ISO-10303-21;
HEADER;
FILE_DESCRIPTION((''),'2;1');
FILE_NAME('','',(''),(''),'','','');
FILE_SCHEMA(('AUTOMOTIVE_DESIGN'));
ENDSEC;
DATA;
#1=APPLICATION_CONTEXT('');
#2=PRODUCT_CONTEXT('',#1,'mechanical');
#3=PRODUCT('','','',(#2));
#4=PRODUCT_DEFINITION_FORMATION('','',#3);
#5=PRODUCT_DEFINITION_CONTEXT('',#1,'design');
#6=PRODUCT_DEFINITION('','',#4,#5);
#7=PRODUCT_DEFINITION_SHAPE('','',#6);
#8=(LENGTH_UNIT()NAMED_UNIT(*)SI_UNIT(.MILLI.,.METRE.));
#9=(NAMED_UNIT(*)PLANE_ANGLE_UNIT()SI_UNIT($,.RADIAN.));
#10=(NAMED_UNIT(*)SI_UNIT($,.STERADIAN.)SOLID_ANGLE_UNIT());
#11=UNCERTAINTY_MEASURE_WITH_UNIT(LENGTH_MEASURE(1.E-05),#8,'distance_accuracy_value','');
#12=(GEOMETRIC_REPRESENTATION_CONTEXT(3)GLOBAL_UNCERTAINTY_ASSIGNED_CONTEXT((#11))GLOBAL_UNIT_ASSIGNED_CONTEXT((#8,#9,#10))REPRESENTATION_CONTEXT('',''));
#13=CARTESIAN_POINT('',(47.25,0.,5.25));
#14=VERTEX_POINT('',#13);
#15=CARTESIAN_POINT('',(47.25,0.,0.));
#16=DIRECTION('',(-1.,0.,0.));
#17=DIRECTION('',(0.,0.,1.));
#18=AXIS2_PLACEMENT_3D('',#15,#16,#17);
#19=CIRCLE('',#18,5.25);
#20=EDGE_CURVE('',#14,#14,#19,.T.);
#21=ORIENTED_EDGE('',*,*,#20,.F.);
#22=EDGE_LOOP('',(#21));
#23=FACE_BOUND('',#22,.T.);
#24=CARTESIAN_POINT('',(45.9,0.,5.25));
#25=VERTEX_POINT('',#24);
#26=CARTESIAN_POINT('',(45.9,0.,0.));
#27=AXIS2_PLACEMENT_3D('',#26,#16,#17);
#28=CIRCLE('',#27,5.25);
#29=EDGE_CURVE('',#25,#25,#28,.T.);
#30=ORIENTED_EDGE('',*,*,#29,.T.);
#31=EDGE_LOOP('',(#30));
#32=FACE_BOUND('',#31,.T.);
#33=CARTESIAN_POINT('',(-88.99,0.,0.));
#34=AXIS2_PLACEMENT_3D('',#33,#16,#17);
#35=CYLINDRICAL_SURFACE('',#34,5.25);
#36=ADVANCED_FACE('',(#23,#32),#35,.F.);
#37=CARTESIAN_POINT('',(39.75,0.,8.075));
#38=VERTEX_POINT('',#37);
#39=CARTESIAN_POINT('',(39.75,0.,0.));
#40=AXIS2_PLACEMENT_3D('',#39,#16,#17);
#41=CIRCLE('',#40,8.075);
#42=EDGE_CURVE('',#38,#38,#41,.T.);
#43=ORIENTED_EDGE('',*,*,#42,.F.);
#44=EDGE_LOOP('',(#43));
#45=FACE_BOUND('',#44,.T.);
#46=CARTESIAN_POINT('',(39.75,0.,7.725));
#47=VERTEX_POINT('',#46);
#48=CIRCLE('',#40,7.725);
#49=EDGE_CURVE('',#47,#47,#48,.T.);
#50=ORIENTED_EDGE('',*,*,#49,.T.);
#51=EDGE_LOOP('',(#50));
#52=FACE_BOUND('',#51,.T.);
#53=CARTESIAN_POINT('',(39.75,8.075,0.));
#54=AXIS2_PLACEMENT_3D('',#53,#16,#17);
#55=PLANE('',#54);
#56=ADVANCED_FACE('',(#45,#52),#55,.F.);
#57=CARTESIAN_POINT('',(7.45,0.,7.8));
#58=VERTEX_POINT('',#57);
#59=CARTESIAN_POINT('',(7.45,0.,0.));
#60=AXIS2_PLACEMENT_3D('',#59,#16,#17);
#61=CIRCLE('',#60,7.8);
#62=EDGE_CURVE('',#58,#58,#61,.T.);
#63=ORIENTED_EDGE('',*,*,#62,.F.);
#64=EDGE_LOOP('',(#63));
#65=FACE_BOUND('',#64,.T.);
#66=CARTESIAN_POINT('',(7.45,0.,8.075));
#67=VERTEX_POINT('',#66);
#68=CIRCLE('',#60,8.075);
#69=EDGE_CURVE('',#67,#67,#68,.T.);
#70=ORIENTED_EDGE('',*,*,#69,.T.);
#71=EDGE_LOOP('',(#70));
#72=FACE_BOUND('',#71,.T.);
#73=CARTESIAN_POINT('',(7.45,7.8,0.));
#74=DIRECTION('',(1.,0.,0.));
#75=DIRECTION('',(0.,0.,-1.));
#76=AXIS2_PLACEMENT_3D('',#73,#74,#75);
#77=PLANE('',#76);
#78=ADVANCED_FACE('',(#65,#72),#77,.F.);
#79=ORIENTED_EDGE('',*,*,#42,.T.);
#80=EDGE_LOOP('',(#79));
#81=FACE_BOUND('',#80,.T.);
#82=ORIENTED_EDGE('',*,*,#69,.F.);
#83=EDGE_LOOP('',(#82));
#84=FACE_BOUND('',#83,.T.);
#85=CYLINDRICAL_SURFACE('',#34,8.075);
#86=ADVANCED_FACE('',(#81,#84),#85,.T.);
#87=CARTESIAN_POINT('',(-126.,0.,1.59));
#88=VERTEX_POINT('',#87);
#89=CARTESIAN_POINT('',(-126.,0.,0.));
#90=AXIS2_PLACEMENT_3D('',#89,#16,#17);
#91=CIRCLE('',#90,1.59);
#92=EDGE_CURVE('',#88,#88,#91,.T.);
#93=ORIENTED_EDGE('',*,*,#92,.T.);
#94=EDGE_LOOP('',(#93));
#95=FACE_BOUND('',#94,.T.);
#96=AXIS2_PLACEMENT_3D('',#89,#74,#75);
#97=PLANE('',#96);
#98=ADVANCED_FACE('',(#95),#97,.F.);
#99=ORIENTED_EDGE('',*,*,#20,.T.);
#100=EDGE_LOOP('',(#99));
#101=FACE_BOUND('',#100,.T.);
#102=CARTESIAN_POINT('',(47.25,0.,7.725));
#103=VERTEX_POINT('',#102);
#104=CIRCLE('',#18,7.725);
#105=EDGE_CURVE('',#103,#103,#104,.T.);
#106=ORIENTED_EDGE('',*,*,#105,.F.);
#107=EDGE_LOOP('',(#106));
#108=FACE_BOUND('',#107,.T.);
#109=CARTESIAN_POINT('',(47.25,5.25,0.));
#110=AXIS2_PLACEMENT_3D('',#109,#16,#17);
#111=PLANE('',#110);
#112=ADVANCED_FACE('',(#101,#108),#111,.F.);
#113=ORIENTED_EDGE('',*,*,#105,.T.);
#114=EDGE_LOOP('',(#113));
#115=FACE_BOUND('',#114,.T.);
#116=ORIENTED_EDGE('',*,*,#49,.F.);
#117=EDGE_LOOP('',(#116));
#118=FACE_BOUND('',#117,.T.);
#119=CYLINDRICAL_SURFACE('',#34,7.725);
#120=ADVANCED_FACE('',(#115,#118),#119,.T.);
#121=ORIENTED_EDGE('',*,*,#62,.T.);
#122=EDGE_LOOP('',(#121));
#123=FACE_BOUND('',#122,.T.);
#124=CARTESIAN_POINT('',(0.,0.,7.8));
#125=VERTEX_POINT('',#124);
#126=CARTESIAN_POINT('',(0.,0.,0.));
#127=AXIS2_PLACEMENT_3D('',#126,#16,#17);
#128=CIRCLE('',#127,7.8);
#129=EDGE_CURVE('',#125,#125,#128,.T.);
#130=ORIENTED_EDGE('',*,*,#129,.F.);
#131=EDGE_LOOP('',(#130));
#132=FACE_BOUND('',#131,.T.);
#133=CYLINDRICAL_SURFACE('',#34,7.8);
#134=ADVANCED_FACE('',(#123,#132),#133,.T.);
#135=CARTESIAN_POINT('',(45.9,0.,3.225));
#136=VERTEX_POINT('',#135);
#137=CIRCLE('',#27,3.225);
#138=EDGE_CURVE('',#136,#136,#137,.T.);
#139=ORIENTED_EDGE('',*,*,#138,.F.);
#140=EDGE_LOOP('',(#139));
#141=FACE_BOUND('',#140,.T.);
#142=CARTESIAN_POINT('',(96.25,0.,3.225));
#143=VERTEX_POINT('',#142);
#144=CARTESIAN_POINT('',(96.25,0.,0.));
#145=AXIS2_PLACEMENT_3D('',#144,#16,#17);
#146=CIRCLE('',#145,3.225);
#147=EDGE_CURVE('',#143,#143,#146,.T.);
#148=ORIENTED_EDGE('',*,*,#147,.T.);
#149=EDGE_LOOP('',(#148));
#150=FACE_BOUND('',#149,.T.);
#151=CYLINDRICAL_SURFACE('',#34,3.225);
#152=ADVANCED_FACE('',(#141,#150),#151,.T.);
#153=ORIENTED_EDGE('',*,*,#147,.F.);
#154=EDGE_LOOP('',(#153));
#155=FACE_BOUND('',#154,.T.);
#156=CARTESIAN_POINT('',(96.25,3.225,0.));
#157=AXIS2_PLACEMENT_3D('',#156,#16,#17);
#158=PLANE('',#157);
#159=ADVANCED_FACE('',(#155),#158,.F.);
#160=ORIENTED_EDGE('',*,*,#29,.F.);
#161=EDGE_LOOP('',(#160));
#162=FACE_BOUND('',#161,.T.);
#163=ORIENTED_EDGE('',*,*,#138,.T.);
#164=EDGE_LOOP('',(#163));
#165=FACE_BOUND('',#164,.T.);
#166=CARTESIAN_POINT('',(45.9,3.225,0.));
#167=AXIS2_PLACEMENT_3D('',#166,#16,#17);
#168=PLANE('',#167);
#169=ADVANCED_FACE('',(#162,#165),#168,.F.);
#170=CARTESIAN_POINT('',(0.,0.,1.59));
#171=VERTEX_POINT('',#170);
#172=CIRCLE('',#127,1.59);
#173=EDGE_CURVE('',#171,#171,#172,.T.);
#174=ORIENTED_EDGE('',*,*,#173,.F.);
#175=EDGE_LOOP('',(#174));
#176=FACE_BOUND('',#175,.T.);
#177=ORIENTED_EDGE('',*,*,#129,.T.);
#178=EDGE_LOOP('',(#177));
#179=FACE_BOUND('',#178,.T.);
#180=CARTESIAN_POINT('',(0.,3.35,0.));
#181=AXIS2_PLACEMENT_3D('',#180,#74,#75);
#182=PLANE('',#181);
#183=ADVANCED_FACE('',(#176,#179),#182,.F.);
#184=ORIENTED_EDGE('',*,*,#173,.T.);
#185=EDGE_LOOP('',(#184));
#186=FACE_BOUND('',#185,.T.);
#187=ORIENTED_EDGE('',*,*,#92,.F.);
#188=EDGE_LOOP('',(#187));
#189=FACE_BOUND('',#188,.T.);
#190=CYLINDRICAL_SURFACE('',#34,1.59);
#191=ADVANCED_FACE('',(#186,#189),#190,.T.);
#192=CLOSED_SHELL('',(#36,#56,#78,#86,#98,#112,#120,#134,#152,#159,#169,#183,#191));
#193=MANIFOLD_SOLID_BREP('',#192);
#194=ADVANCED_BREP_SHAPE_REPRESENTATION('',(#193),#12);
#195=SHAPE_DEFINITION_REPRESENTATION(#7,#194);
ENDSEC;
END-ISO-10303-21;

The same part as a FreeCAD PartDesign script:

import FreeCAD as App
import Part
import Sketcher
from FreeCAD import Vector
Q = App.Units.Quantity

doc = App.newDocument("Part")
body = doc.addObject("PartDesign::Body", "Body")

sketch1 = body.newObject("Sketcher::SketchObject", "Sketch")
sketch1.AttachmentSupport = (doc.getObject("XY_Plane"), [""])
sketch1.MapMode = "FlatFace"
sketch1.addGeometry(Part.LineSegment(Vector(0, 1.59, 0), Vector(-126, 1.59, 0)), False)
sketch1.addGeometry(Part.LineSegment(Vector(-126, 1.59, 0), Vector(-126, 0, 0)), False)
sketch1.addGeometry(Part.LineSegment(Vector(-126, 0, 0), Vector(96.25, 0, 0)), False)
sketch1.addGeometry(Part.LineSegment(Vector(96.25, 0, 0), Vector(96.25, 3.23, 0)), False)
sketch1.addGeometry(Part.LineSegment(Vector(96.25, 3.23, 0), Vector(45.9, 3.23, 0)), False)
sketch1.addGeometry(Part.LineSegment(Vector(45.9, 3.23, 0), Vector(45.9, 5.25, 0)), False)
sketch1.addGeometry(Part.LineSegment(Vector(45.9, 5.25, 0), Vector(47.25, 5.25, 0)), False)
sketch1.addGeometry(Part.LineSegment(Vector(47.25, 5.25, 0), Vector(47.25, 7.72, 0)), False)
sketch1.addGeometry(Part.LineSegment(Vector(47.25, 7.72, 0), Vector(39.75, 7.72, 0)), False)
sketch1.addGeometry(Part.LineSegment(Vector(39.75, 7.72, 0), Vector(39.75, 8.07, 0)), False)
sketch1.addGeometry(Part.LineSegment(Vector(39.75, 8.07, 0), Vector(7.45, 8.07, 0)), False)
sketch1.addGeometry(Part.LineSegment(Vector(7.45, 8.07, 0), Vector(7.45, 7.8, 0)), False)
sketch1.addGeometry(Part.LineSegment(Vector(7.45, 7.8, 0), Vector(0, 7.8, 0)), False)
sketch1.addGeometry(Part.LineSegment(Vector(0, 7.8, 0), Vector(0, 1.59, 0)), False)
sketch1.addConstraint(Sketcher.Constraint("Coincident", 0, 2, 1, 1))
sketch1.addConstraint(Sketcher.Constraint("Coincident", 1, 2, 2, 1))
sketch1.addConstraint(Sketcher.Constraint("Coincident", 2, 2, 3, 1))
sketch1.addConstraint(Sketcher.Constraint("Coincident", 3, 2, 4, 1))
sketch1.addConstraint(Sketcher.Constraint("Coincident", 4, 2, 5, 1))
sketch1.addConstraint(Sketcher.Constraint("Coincident", 5, 2, 6, 1))
sketch1.addConstraint(Sketcher.Constraint("Coincident", 6, 2, 7, 1))
sketch1.addConstraint(Sketcher.Constraint("Coincident", 7, 2, 8, 1))
sketch1.addConstraint(Sketcher.Constraint("Coincident", 8, 2, 9, 1))
sketch1.addConstraint(Sketcher.Constraint("Coincident", 9, 2, 10, 1))
sketch1.addConstraint(Sketcher.Constraint("Coincident", 10, 2, 11, 1))
sketch1.addConstraint(Sketcher.Constraint("Coincident", 11, 2, 12, 1))
sketch1.addConstraint(Sketcher.Constraint("Coincident", 12, 2, 13, 1))
sketch1.addConstraint(Sketcher.Constraint("Coincident", 13, 2, 0, 1))
sketch1.addConstraint(Sketcher.Constraint("Horizontal", 0))
sketch1.addConstraint(Sketcher.Constraint("Vertical", 1))
sketch1.addConstraint(Sketcher.Constraint("Horizontal", 2))
sketch1.addConstraint(Sketcher.Constraint("Vertical", 3))
sketch1.addConstraint(Sketcher.Constraint("Horizontal", 4))
sketch1.addConstraint(Sketcher.Constraint("Vertical", 5))
sketch1.addConstraint(Sketcher.Constraint("Horizontal", 6))
sketch1.addConstraint(Sketcher.Constraint("Vertical", 7))
sketch1.addConstraint(Sketcher.Constraint("Horizontal", 8))
sketch1.addConstraint(Sketcher.Constraint("Vertical", 9))
sketch1.addConstraint(Sketcher.Constraint("Horizontal", 10))
sketch1.addConstraint(Sketcher.Constraint("Vertical", 11))
sketch1.addConstraint(Sketcher.Constraint("Horizontal", 12))
sketch1.addConstraint(Sketcher.Constraint("Vertical", 13))
sketch1.addConstraint(Sketcher.Constraint("PointOnObject", 1, 2, -1))
sketch1.addConstraint(Sketcher.Constraint("PointOnObject", 12, 2, -2))
sketch1.addConstraint(Sketcher.Constraint("DistanceX", 0, 2, 0, 1, Q("126 mm")))
sketch1.addConstraint(Sketcher.Constraint("DistanceX", 8, 2, 8, 1, Q("7.5 mm")))
sketch1.addConstraint(Sketcher.Constraint("DistanceX", 10, 2, 10, 1, Q("32.3 mm")))
sketch1.addConstraint(Sketcher.Constraint("DistanceX", 6, 2, 3, 2, Q("49 mm")))
sketch1.addConstraint(Sketcher.Constraint("DistanceX", 2, 1, 2, 2, Q("222.25 mm")))
sketch1.addConstraint(Sketcher.Constraint("DistanceX", 4, 2, 4, 1, Q("50.35 mm")))
sketch1.addConstraint(Sketcher.Constraint("DistanceY", 1, 2, 1, 1, Q("1.59 mm")))
sketch1.addConstraint(Sketcher.Constraint("DistanceY", 9, 1, 9, 2, Q("0.35 mm")))
sketch1.addConstraint(Sketcher.Constraint("DistanceY", 13, 2, 13, 1, Q("6.21 mm")))
sketch1.addConstraint(Sketcher.Constraint("DistanceY", 4, 2, 7, 2, Q("4.5 mm")))
sketch1.addConstraint(Sketcher.Constraint("DistanceY", 3, 1, 3, 2, Q("3.225 mm")))
sketch1.addConstraint(Sketcher.Constraint("DistanceY", 5, 1, 5, 2, Q("2.025 mm")))
revolution = body.newObject("PartDesign::Revolution", "Revolution")
revolution.Profile = sketch1
revolution.ReferenceAxis = (sketch1, ["H_Axis"])
revolution.Angle = 360

doc.recompute()
